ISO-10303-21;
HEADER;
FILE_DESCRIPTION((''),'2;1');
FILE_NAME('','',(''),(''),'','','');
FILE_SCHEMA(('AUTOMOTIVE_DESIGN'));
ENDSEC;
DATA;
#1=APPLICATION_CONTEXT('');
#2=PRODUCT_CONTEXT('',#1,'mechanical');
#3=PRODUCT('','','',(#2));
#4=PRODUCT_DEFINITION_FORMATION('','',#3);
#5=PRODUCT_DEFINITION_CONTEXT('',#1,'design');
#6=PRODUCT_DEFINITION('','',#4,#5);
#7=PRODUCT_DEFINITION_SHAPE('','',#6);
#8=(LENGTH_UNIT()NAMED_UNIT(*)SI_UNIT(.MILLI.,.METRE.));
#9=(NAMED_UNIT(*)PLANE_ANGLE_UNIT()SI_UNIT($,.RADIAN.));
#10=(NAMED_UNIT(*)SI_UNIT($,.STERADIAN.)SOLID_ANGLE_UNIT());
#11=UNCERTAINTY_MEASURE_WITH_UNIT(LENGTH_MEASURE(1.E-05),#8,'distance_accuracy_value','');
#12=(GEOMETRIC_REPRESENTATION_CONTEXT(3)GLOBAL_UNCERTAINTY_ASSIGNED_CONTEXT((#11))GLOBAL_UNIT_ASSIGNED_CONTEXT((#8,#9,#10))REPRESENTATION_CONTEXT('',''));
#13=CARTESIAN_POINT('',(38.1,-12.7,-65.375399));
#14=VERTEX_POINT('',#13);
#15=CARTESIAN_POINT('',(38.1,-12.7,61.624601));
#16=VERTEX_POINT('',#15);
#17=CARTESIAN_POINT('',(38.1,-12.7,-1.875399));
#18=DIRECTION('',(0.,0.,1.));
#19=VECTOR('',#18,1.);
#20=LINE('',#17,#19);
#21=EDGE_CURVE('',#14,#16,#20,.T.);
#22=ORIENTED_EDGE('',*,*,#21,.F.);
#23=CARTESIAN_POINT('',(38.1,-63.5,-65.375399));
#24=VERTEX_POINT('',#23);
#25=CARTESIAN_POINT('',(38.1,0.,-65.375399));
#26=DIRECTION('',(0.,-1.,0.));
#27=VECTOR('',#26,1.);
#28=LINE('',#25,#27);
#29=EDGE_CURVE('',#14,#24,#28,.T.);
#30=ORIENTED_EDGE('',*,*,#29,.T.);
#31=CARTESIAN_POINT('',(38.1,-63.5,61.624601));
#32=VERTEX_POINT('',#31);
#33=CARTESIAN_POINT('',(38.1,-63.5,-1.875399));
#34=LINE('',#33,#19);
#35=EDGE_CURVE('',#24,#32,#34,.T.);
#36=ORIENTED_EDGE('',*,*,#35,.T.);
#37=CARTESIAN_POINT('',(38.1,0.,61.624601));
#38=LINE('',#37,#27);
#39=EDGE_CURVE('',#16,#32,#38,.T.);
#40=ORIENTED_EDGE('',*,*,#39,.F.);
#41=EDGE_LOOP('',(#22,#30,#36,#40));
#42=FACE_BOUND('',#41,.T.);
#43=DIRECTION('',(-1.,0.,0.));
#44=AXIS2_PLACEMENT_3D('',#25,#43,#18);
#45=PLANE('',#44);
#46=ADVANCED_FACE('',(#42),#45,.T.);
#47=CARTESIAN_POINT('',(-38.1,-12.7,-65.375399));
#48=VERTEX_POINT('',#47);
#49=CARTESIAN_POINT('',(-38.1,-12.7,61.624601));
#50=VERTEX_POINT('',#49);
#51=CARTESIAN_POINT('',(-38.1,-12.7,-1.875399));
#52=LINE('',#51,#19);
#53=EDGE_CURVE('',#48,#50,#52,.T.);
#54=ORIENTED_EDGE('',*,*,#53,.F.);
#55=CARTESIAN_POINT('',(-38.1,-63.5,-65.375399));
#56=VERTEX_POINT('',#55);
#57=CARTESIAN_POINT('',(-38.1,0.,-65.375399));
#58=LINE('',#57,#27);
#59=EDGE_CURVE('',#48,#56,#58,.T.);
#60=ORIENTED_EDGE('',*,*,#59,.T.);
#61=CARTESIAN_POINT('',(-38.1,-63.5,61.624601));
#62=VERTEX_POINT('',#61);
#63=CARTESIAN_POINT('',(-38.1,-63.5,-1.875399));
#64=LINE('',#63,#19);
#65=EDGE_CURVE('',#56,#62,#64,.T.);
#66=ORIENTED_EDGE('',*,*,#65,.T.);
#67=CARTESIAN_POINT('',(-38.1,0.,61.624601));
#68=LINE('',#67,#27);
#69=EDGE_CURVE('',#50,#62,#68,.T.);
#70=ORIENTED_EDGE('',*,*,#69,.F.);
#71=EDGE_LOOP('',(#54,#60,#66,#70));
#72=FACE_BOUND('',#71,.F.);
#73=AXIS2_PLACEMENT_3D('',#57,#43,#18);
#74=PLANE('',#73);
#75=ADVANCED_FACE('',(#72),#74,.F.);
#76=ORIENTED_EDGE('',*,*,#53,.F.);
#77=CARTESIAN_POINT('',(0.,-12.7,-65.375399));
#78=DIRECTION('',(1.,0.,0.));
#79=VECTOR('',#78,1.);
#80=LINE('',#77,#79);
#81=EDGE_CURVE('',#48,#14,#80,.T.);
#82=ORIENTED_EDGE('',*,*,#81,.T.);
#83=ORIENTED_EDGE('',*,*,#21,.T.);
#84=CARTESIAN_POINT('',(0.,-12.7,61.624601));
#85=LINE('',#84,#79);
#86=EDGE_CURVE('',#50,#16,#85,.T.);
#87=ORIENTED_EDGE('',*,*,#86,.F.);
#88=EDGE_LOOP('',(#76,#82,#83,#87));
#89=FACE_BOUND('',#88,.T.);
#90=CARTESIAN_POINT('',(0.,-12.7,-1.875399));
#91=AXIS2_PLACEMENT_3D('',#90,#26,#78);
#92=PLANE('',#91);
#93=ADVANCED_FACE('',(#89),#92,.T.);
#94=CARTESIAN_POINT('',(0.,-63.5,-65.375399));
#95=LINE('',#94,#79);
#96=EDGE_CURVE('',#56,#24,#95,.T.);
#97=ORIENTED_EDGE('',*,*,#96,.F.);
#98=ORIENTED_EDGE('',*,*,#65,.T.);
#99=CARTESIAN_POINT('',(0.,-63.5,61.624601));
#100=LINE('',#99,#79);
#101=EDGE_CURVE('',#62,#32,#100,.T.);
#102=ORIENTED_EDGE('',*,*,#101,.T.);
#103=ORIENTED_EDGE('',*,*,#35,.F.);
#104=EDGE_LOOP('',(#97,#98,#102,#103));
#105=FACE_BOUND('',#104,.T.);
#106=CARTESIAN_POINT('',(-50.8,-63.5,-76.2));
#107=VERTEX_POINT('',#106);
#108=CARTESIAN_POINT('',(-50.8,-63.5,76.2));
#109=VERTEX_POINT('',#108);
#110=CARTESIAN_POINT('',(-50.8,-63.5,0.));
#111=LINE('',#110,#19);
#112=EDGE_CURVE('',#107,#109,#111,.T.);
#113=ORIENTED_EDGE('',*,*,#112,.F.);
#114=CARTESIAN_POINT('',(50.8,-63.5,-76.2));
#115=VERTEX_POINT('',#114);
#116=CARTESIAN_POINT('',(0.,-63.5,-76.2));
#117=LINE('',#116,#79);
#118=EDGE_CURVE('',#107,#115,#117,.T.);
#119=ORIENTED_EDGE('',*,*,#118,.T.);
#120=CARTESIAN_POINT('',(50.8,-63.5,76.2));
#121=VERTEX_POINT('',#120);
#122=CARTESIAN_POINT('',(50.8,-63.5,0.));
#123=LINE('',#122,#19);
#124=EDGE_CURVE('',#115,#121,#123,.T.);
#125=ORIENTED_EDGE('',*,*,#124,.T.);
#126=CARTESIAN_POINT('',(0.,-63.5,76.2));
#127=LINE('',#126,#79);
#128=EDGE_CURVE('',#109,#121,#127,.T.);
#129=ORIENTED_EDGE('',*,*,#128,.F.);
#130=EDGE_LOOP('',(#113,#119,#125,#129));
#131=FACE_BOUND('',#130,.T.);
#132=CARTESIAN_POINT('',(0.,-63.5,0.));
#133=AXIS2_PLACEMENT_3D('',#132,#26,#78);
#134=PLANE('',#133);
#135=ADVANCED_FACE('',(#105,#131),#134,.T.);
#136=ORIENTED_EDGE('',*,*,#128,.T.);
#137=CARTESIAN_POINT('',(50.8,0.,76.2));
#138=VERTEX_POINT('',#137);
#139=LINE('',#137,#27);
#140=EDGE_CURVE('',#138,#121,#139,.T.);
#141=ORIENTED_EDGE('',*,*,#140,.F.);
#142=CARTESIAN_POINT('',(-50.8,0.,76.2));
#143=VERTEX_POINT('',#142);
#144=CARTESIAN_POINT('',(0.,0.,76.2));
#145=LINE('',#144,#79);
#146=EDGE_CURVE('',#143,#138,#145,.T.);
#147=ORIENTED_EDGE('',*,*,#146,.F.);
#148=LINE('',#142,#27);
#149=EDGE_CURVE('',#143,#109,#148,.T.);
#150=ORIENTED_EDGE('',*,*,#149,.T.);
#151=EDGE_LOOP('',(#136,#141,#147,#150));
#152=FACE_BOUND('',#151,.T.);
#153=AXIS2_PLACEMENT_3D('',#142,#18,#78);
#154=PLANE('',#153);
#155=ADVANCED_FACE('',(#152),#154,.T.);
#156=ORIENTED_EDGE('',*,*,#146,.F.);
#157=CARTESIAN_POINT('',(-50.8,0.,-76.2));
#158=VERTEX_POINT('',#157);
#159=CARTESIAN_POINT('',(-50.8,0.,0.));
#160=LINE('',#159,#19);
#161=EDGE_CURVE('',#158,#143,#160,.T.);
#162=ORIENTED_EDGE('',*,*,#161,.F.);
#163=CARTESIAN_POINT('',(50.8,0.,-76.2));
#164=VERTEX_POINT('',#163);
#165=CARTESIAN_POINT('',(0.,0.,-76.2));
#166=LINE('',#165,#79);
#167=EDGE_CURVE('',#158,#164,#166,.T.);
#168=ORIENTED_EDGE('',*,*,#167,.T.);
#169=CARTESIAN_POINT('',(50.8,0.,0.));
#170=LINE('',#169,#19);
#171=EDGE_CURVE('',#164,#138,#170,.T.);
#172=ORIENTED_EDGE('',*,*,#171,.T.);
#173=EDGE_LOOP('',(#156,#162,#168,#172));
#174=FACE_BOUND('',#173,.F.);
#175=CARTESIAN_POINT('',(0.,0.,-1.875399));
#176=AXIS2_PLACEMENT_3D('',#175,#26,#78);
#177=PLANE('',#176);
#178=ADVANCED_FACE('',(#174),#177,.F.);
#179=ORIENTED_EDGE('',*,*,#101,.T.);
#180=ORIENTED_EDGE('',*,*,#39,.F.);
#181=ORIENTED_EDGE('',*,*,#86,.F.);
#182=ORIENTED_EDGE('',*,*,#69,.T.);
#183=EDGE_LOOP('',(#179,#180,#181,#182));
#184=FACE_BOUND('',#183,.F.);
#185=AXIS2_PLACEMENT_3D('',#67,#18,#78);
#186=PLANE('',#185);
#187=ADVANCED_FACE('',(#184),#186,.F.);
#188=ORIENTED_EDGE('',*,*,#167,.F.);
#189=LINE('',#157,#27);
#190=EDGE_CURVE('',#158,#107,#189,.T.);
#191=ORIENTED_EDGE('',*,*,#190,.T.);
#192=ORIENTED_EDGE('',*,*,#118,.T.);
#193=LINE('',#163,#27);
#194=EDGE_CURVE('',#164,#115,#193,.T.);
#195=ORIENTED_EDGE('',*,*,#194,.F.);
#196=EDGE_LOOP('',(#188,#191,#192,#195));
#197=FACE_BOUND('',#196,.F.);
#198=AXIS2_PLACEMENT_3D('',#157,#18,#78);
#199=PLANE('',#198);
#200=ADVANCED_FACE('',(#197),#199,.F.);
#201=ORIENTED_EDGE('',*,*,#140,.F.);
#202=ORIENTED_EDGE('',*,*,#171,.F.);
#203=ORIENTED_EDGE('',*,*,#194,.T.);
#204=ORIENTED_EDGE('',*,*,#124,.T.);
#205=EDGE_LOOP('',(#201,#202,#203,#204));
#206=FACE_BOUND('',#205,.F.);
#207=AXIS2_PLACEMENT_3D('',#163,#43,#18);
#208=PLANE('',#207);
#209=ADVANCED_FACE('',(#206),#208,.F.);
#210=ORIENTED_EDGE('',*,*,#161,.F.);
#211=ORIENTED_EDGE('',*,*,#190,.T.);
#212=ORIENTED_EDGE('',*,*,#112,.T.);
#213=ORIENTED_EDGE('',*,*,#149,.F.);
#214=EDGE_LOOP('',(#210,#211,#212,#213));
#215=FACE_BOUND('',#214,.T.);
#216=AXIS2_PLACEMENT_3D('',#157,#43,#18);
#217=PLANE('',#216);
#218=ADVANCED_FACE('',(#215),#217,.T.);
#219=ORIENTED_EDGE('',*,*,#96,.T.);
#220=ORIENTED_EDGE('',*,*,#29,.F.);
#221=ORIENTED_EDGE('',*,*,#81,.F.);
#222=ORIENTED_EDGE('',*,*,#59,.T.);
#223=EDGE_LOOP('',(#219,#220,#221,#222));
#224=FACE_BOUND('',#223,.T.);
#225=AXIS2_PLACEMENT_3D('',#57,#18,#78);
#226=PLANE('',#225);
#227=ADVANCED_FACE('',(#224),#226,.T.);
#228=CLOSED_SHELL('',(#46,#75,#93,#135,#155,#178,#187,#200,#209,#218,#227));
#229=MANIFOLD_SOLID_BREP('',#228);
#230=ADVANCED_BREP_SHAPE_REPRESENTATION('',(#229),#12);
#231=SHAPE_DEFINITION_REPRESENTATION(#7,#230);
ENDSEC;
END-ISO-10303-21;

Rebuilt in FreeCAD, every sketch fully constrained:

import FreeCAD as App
import Part
import Sketcher
Q = App.Units.Quantity


def add_polygon(sketch, points):
    """Adds a closed chain of lines whose ends are joined by coincident constraints."""
    first, n = sketch.GeometryCount, len(points)
    for a, b in zip(points, points[1:] + points[:1]):
        sketch.addGeometry(Part.LineSegment(App.Vector(*a, 0), App.Vector(*b, 0)), False)
    for i in range(n):
        sketch.addConstraint(Sketcher.Constraint("Coincident", first + i, 2, first + (i + 1) % n, 1))

doc = App.newDocument("Part")
body = doc.addObject("PartDesign::Body", "Body")

# Sketch on XZ plane
sketch1 = body.newObject("Sketcher::SketchObject", "Sketch")
sketch1.AttachmentSupport = (doc.getObject("XZ_Plane"), [""])
sketch1.MapMode = "FlatFace"
add_polygon(sketch1, [(-51, 76), (-51, -76), (51, -76), (51, 76)])  # lines 0-3
add_polygon(sketch1, [(38, -65), (-38, -65), (-38, 62), (38, 62)])  # lines 4-7
sketch1.addConstraint([
    Sketcher.Constraint("Vertical", 0),
    Sketcher.Constraint("Horizontal", 1),
    Sketcher.Constraint("Vertical", 2),
    Sketcher.Constraint("Horizontal", 3),
    Sketcher.Constraint("Horizontal", 4),
    Sketcher.Constraint("Vertical", 5),
    Sketcher.Constraint("Horizontal", 6),
    Sketcher.Constraint("Vertical", 7),
    Sketcher.Constraint("Symmetric", 0, 2, 2, 2, -1, 1),
    Sketcher.Constraint("DistanceX", 1, 1, 1, 2, Q("4 in")),
    Sketcher.Constraint("DistanceX", 4, 2, 4, 1, Q("3 in")),
    Sketcher.Constraint("DistanceY", 0, 2, 0, 1, Q("6 in")),
    Sketcher.Constraint("DistanceY", 5, 1, 5, 2, Q("5 in")),
    Sketcher.Constraint("DistanceX", 4, 2, -1, 1, Q("1.5 in")),
    Sketcher.Constraint("DistanceY", 4, 2, -1, 1, Q("65.375399 mm")),
])
pad1 = body.newObject("PartDesign::Pad", "Pad")
pad1.Profile = sketch1
pad1.Length = Q("2.5 in")

# Sketch on XZ plane
sketch2 = body.newObject("Sketcher::SketchObject", "Sketch001")
sketch2.AttachmentSupport = (doc.getObject("XZ_Plane"), [""])
sketch2.MapMode = "FlatFace"
add_polygon(sketch2, [(-38, 62), (-38, -65), (38, -65), (38, 62)])  # lines 0-3
sketch2.addConstraint([
    Sketcher.Constraint("Vertical", 0),
    Sketcher.Constraint("Horizontal", 1),
    Sketcher.Constraint("Vertical", 2),
    Sketcher.Constraint("Horizontal", 3),
    Sketcher.Constraint("DistanceX", 1, 1, 1, 2, Q("3 in")),
    Sketcher.Constraint("DistanceY", 0, 2, 0, 1, Q("5 in")),
    Sketcher.Constraint("DistanceX", 0, 2, -1, 1, Q("1.5 in")),
    Sketcher.Constraint("DistanceY", 0, 2, -1, 1, Q("65.375399 mm")),
])
pad2 = body.newObject("PartDesign::Pad", "Pad001")
pad2.Profile = sketch2
pad2.Length = Q("0.5 in")

doc.recompute()
